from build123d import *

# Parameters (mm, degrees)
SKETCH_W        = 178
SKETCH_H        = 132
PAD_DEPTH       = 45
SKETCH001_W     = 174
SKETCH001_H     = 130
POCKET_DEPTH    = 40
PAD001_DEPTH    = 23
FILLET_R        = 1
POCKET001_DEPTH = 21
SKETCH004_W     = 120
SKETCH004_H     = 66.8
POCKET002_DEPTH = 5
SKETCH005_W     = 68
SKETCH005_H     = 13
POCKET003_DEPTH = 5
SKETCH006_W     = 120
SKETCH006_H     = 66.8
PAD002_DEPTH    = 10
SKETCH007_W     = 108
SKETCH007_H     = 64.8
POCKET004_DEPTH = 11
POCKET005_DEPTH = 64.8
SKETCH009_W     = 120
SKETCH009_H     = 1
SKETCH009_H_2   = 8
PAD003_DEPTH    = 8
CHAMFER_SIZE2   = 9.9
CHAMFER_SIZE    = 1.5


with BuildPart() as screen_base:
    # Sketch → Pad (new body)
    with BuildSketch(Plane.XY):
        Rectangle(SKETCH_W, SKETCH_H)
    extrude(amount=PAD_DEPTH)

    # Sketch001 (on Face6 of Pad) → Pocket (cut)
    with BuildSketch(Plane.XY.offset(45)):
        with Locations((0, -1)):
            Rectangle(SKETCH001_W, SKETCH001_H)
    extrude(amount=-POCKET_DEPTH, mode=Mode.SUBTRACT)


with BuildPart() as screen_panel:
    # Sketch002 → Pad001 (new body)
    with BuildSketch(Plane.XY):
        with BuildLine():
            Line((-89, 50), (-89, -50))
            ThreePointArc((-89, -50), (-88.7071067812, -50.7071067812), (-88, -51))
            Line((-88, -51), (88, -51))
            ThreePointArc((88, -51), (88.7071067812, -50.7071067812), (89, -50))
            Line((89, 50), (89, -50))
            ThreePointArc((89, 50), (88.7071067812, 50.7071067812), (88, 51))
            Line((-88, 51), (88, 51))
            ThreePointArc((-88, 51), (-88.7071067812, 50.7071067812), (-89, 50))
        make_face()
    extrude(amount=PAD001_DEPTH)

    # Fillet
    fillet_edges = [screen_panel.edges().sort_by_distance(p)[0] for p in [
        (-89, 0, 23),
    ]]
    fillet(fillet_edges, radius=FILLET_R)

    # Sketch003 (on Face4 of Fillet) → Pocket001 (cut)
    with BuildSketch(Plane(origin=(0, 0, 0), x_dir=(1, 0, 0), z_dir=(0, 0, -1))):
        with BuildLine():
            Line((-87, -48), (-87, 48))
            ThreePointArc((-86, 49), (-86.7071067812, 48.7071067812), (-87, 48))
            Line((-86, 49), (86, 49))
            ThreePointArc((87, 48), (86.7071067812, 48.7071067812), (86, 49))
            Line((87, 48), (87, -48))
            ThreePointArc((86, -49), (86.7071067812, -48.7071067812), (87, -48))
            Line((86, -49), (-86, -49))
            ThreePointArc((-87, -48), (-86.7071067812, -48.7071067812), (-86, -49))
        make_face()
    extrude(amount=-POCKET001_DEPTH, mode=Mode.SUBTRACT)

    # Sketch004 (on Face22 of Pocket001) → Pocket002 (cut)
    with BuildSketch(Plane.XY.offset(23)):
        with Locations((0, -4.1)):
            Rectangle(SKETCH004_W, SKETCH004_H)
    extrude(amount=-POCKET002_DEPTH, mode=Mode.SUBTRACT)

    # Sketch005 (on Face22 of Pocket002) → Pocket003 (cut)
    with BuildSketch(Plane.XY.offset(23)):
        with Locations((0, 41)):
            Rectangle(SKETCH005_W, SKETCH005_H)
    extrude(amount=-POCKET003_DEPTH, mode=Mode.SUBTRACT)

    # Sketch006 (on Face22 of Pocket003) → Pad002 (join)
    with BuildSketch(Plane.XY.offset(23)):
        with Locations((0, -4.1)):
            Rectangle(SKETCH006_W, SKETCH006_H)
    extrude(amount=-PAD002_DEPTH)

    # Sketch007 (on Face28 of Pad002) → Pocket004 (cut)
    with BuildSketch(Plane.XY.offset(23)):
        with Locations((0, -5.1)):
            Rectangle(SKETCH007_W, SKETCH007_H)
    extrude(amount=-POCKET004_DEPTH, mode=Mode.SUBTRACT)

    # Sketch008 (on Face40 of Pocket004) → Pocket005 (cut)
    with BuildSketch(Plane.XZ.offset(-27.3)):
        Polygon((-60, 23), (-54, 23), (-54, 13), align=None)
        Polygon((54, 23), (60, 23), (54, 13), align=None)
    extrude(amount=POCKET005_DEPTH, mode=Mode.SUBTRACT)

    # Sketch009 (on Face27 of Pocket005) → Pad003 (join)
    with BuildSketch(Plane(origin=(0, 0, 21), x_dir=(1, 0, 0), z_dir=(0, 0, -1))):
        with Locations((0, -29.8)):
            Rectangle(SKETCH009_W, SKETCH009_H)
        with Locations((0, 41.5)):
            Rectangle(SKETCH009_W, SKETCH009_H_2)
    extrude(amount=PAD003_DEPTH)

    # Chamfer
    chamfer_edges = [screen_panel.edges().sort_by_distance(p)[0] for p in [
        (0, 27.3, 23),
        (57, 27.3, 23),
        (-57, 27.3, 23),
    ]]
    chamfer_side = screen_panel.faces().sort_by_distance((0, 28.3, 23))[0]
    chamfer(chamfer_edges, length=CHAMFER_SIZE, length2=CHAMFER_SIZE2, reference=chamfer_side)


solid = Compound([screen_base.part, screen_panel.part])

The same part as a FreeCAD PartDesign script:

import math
import FreeCAD as App
import Part
import Sketcher

V = App.Vector


def edges_at(feature, points):
    """Names of the edges that pass closest to the given points."""
    edges = feature.Shape.Edges
    near = lambda p: min(range(len(edges)), key=lambda i: edges[i].distToShape(Part.Vertex(*p))[0])
    return sorted({f"Edge{near(p) + 1}" for p in points})

doc = App.newDocument("Part")
body = doc.addObject("PartDesign::Body", "Body")

# Sketch on XY plane
sketch1 = doc.addObject("Sketcher::SketchObject", "Sketch")
body.addObject(sketch1)
sketch1.AttachmentSupport = (doc.XY_Plane, [""])
sketch1.MapMode = "FlatFace"
sketch1.addGeometry([
    Part.LineSegment(V(-89, 66, 0), V(-89, -66, 0)),
    Part.LineSegment(V(-89, -66, 0), V(89, -66, 0)),
    Part.LineSegment(V(89, -66, 0), V(89, 66, 0)),
    Part.LineSegment(V(89, 66, 0), V(-89, 66, 0)),
], False)
sketch1.addConstraint([
    Sketcher.Constraint("Coincident", 0, 2, 1, 1),
    Sketcher.Constraint("Coincident", 1, 2, 2, 1),
    Sketcher.Constraint("Coincident", 2, 2, 3, 1),
    Sketcher.Constraint("Coincident", 3, 2, 0, 1),
    Sketcher.Constraint("Vertical", 0),
    Sketcher.Constraint("Horizontal", 1),
    Sketcher.Constraint("Vertical", 2),
    Sketcher.Constraint("Horizontal", 3),
    Sketcher.Constraint("Symmetric", 0, 2, 2, 2, -1, 1),
    Sketcher.Constraint("DistanceX", 1, 1, 1, 2, 178.0),
    Sketcher.Constraint("DistanceY", 0, 2, 0, 1, 132.0),
])
pad1 = doc.addObject("PartDesign::Pad", "Pad")
body.addObject(pad1)
pad1.Profile = sketch1
pad1.Length = 45

# Sketch on XY plane
sketch2 = doc.addObject("Sketcher::SketchObject", "Sketch001")
body.addObject(sketch2)
sketch2.AttachmentSupport = (doc.XY_Plane, [""])
sketch2.MapMode = "FlatFace"
sketch2.AttachmentOffset = App.Placement(V(0, 0, 45), App.Rotation())
sketch2.addGeometry([
    Part.LineSegment(V(-87, 64, 0), V(-87, -66, 0)),
    Part.LineSegment(V(-87, -66, 0), V(87, -66, 0)),
    Part.LineSegment(V(87, -66, 0), V(87, 64, 0)),
    Part.LineSegment(V(87, 64, 0), V(-87, 64, 0)),
], False)
sketch2.addConstraint([
    Sketcher.Constraint("Coincident", 0, 2, 1, 1),
    Sketcher.Constraint("Coincident", 1, 2, 2, 1),
    Sketcher.Constraint("Coincident", 2, 2, 3, 1),
    Sketcher.Constraint("Coincident", 3, 2, 0, 1),
    Sketcher.Constraint("Vertical", 0),
    Sketcher.Constraint("Horizontal", 1),
    Sketcher.Constraint("Vertical", 2),
    Sketcher.Constraint("Horizontal", 3),
    Sketcher.Constraint("DistanceX", 1, 1, 1, 2, 174.0),
    Sketcher.Constraint("DistanceY", 0, 2, 0, 1, 130.0),
    Sketcher.Constraint("DistanceX", 0, 2, -1, 1, 87.0),
    Sketcher.Constraint("DistanceY", 0, 2, -1, 1, 66.0),
])
pocket1 = doc.addObject("PartDesign::Pocket", "Pocket")
body.addObject(pocket1)
pocket1.Profile = sketch2
pocket1.Length = 40
body2 = doc.addObject("PartDesign::Body", "Body001")

# Sketch on XY plane
sketch3 = doc.addObject("Sketcher::SketchObject", "Sketch002")
body2.addObject(sketch3)
sketch3.AttachmentSupport = (doc.getObject("XY_Plane001"), [""])
sketch3.MapMode = "FlatFace"
sketch3.addGeometry([
    Part.LineSegment(V(-89, 50, 0), V(-89, -50, 0)),  # 0
    Part.ArcOfCircle(Part.Circle(V(-88, -50, 0), V(0, 0, 1), 1), math.radians(180), math.radians(270)),  # 1
    Part.LineSegment(V(-88, -51, 0), V(88, -51, 0)),  # 2
    Part.ArcOfCircle(Part.Circle(V(88, -50, 0), V(0, 0, 1), 1), math.radians(-90), math.radians(0)),  # 3
    Part.LineSegment(V(89, -50, 0), V(89, 50, 0)),  # 4
    Part.ArcOfCircle(Part.Circle(V(88, 50, 0), V(0, 0, 1), 1), math.radians(0), math.radians(90)),  # 5
    Part.LineSegment(V(88, 51, 0), V(-88, 51, 0)),  # 6
    Part.ArcOfCircle(Part.Circle(V(-88, 50, 0), V(0, 0, 1), 1), math.radians(90), math.radians(180)),  # 7
], False)
sketch3.addConstraint([
    Sketcher.Constraint("Tangent", 0, 2, 1, 1),
    Sketcher.Constraint("Tangent", 1, 2, 2, 1),
    Sketcher.Constraint("Tangent", 2, 2, 3, 1),
    Sketcher.Constraint("Tangent", 3, 2, 4, 1),
    Sketcher.Constraint("Tangent", 4, 2, 5, 1),
    Sketcher.Constraint("Tangent", 5, 2, 6, 1),
    Sketcher.Constraint("Tangent", 6, 2, 7, 1),
    Sketcher.Constraint("Tangent", 7, 2, 0, 1),
    Sketcher.Constraint("Vertical", 0),
    Sketcher.Constraint("Horizontal", 2),
    Sketcher.Constraint("Vertical", 4),
    Sketcher.Constraint("Horizontal", 6),
    Sketcher.Constraint("Equal", 1, 3),
    Sketcher.Constraint("Equal", 3, 5),
    Sketcher.Constraint("Equal", 5, 7),
    Sketcher.Constraint("Symmetric", 1, 3, 5, 3, -1, 1),
    Sketcher.Constraint("Radius", 1, 1.0),
    Sketcher.Constraint("DistanceX", 2, 1, 2, 2, 176.0),
    Sketcher.Constraint("DistanceY", 0, 2, 0, 1, 100.0),
])
pad2 = doc.addObject("PartDesign::Pad", "Pad001")
body2.addObject(pad2)
pad2.Profile = sketch3
pad2.Length = 23
doc.recompute()

fillet = doc.addObject("PartDesign::Fillet", "Fillet")
body2.addObject(fillet)
fillet.Base = (pad2, edges_at(pad2, [(-89, 0, 23)]))
fillet.Radius = 1

# Sketch on XY plane
sketch4 = doc.addObject("Sketcher::SketchObject", "Sketch003")
body2.addObject(sketch4)
sketch4.AttachmentSupport = (doc.getObject("XY_Plane001"), [""])
sketch4.MapMode = "FlatFace"
sketch4.addGeometry([
    Part.LineSegment(V(-87, -48, 0), V(-87, 48, 0)),  # 0
    Part.ArcOfCircle(Part.Circle(V(-86, 48, 0), V(0, 0, 1), 1), math.radians(90), math.radians(180)),  # 1
    Part.LineSegment(V(-86, 49, 0), V(86, 49, 0)),  # 2
    Part.ArcOfCircle(Part.Circle(V(86, 48, 0), V(0, 0, 1), 1), math.radians(0), math.radians(90)),  # 3
    Part.LineSegment(V(87, 48, 0), V(87, -48, 0)),  # 4
    Part.ArcOfCircle(Part.Circle(V(86, -48, 0), V(0, 0, 1), 1), math.radians(-90), math.radians(0)),  # 5
    Part.LineSegment(V(86, -49, 0), V(-86, -49, 0)),  # 6
    Part.ArcOfCircle(Part.Circle(V(-86, -48, 0), V(0, 0, 1), 1), math.radians(180), math.radians(270)),  # 7
], False)
sketch4.addConstraint([
    Sketcher.Constraint("Tangent", 0, 2, 1, 2),
    Sketcher.Constraint("Tangent", 1, 1, 2, 1),
    Sketcher.Constraint("Tangent", 2, 2, 3, 2),
    Sketcher.Constraint("Tangent", 3, 1, 4, 1),
    Sketcher.Constraint("Tangent", 4, 2, 5, 2),
    Sketcher.Constraint("Tangent", 5, 1, 6, 1),
    Sketcher.Constraint("Tangent", 6, 2, 7, 2),
    Sketcher.Constraint("Tangent", 7, 1, 0, 1),
    Sketcher.Constraint("Vertical", 0),
    Sketcher.Constraint("Horizontal", 2),
    Sketcher.Constraint("Vertical", 4),
    Sketcher.Constraint("Horizontal", 6),
    Sketcher.Constraint("Equal", 1, 3),
    Sketcher.Constraint("Equal", 3, 5),
    Sketcher.Constraint("Equal", 5, 7),
    Sketcher.Constraint("Symmetric", 1, 3, 5, 3, -1, 1),
    Sketcher.Constraint("Radius", 1, 1.0),
    Sketcher.Constraint("DistanceX", 2, 1, 2, 2, 172.0),
    Sketcher.Constraint("DistanceY", 0, 1, 0, 2, 96.0),
])
pocket2 = doc.addObject("PartDesign::Pocket", "Pocket001")
body2.addObject(pocket2)
pocket2.Profile = sketch4
pocket2.Length = 21
pocket2.Reversed = True

# Sketch on XY plane
sketch5 = doc.addObject("Sketcher::SketchObject", "Sketch004")
body2.addObject(sketch5)
sketch5.AttachmentSupport = (doc.getObject("XY_Plane001"), [""])
sketch5.MapMode = "FlatFace"
sketch5.AttachmentOffset = App.Placement(V(0, 0, 23), App.Rotation())
sketch5.addGeometry([
    Part.LineSegment(V(-60, 29, 0), V(-60, -38, 0)),
    Part.LineSegment(V(-60, -38, 0), V(60, -38, 0)),
    Part.LineSegment(V(60, -38, 0), V(60, 29, 0)),
    Part.LineSegment(V(60, 29, 0), V(-60, 29, 0)),
], False)
sketch5.addConstraint([
    Sketcher.Constraint("Coincident", 0, 2, 1, 1),
    Sketcher.Constraint("Coincident", 1, 2, 2, 1),
    Sketcher.Constraint("Coincident", 2, 2, 3, 1),
    Sketcher.Constraint("Coincident", 3, 2, 0, 1),
    Sketcher.Constraint("Vertical", 0),
    Sketcher.Constraint("Horizontal", 1),
    Sketcher.Constraint("Vertical", 2),
    Sketcher.Constraint("Horizontal", 3),
    Sketcher.Constraint("DistanceX", 1, 1, 1, 2, 120.0),
    Sketcher.Constraint("DistanceY", 0, 2, 0, 1, 66.8),
    Sketcher.Constraint("DistanceX", 0, 2, -1, 1, 60.0),
    Sketcher.Constraint("DistanceY", 0, 2, -1, 1, 37.5),
])
pocket3 = doc.addObject("PartDesign::Pocket", "Pocket002")
body2.addObject(pocket3)
pocket3.Profile = sketch5
pocket3.Length = 5

# Sketch on XY plane
sketch6 = doc.addObject("Sketcher::SketchObject", "Sketch005")
body2.addObject(sketch6)
sketch6.AttachmentSupport = (doc.getObject("XY_Plane001"), [""])
sketch6.MapMode = "FlatFace"
sketch6.AttachmentOffset = App.Placement(V(0, 0, 23), App.Rotation())
sketch6.addGeometry([
    Part.LineSegment(V(-34, 48, 0), V(-34, 34, 0)),
    Part.LineSegment(V(-34, 34, 0), V(34, 34, 0)),
    Part.LineSegment(V(34, 34, 0), V(34, 48, 0)),
    Part.LineSegment(V(34, 48, 0), V(-34, 48, 0)),
], False)
sketch6.addConstraint([
    Sketcher.Constraint("Coincident", 0, 2, 1, 1),
    Sketcher.Constraint("Coincident", 1, 2, 2, 1),
    Sketcher.Constraint("Coincident", 2, 2, 3, 1),
    Sketcher.Constraint("Coincident", 3, 2, 0, 1),
    Sketcher.Constraint("Vertical", 0),
    Sketcher.Constraint("Horizontal", 1),
    Sketcher.Constraint("Vertical", 2),
    Sketcher.Constraint("Horizontal", 3),
    Sketcher.Constraint("DistanceX", 1, 1, 1, 2, 68.0),
    Sketcher.Constraint("DistanceY", 0, 2, 0, 1, 13.0),
    Sketcher.Constraint("DistanceX", 0, 2, -1, 1, 34.0),
    Sketcher.Constraint("DistanceY", -1, 1, 0, 2, 34.5),
])
pocket4 = doc.addObject("PartDesign::Pocket", "Pocket003")
body2.addObject(pocket4)
pocket4.Profile = sketch6
pocket4.Length = 5

# Sketch on XY plane
sketch7 = doc.addObject("Sketcher::SketchObject", "Sketch006")
body2.addObject(sketch7)
sketch7.AttachmentSupport = (doc.getObject("XY_Plane001"), [""])
sketch7.MapMode = "FlatFace"
sketch7.AttachmentOffset = App.Placement(V(0, 0, 23), App.Rotation())
sketch7.addGeometry([
    Part.LineSegment(V(-60, 29, 0), V(-60, -38, 0)),
    Part.LineSegment(V(-60, -38, 0), V(60, -38, 0)),
    Part.LineSegment(V(60, -38, 0), V(60, 29, 0)),
    Part.LineSegment(V(60, 29, 0), V(-60, 29, 0)),
], False)
sketch7.addConstraint([
    Sketcher.Constraint("Coincident", 0, 2, 1, 1),
    Sketcher.Constraint("Coincident", 1, 2, 2, 1),
    Sketcher.Constraint("Coincident", 2, 2, 3, 1),
    Sketcher.Constraint("Coincident", 3, 2, 0, 1),
    Sketcher.Constraint("Vertical", 0),
    Sketcher.Constraint("Horizontal", 1),
    Sketcher.Constraint("Vertical", 2),
    Sketcher.Constraint("Horizontal", 3),
    Sketcher.Constraint("DistanceX", 1, 1, 1, 2, 120.0),
    Sketcher.Constraint("DistanceY", 0, 2, 0, 1, 66.8),
    Sketcher.Constraint("DistanceX", 0, 2, -1, 1, 60.0),
    Sketcher.Constraint("DistanceY", 0, 2, -1, 1, 37.5),
])
pad3 = doc.addObject("PartDesign::Pad", "Pad002")
body2.addObject(pad3)
pad3.Profile = sketch7
pad3.Length = 10
pad3.Reversed = True

# Sketch on XY plane
sketch8 = doc.addObject("Sketcher::SketchObject", "Sketch007")
body2.addObject(sketch8)
sketch8.AttachmentSupport = (doc.getObject("XY_Plane001"), [""])
sketch8.MapMode = "FlatFace"
sketch8.AttachmentOffset = App.Placement(V(0, 0, 23), App.Rotation())
sketch8.addGeometry([
    Part.LineSegment(V(-54, 27, 0), V(-54, -38, 0)),
    Part.LineSegment(V(-54, -38, 0), V(54, -38, 0)),
    Part.LineSegment(V(54, -38, 0), V(54, 27, 0)),
    Part.LineSegment(V(54, 27, 0), V(-54, 27, 0)),
], False)
sketch8.addConstraint([
    Sketcher.Constraint("Coincident", 0, 2, 1, 1),
    Sketcher.Constraint("Coincident", 1, 2, 2, 1),
    Sketcher.Constraint("Coincident", 2, 2, 3, 1),
    Sketcher.Constraint("Coincident", 3, 2, 0, 1),
    Sketcher.Constraint("Vertical", 0),
    Sketcher.Constraint("Horizontal", 1),
    Sketcher.Constraint("Vertical", 2),
    Sketcher.Constraint("Horizontal", 3),
    Sketcher.Constraint("DistanceX", 1, 1, 1, 2, 108.0),
    Sketcher.Constraint("DistanceY", 0, 2, 0, 1, 64.8),
    Sketcher.Constraint("DistanceX", 0, 2, -1, 1, 54.0),
    Sketcher.Constraint("DistanceY", 0, 2, -1, 1, 37.5),
])
pocket5 = doc.addObject("PartDesign::Pocket", "Pocket004")
body2.addObject(pocket5)
pocket5.Profile = sketch8
pocket5.Length = 11

# Sketch on XZ plane
sketch9 = doc.addObject("Sketcher::SketchObject", "Sketch008")
body2.addObject(sketch9)
sketch9.AttachmentSupport = (doc.getObject("XZ_Plane001"), [""])
sketch9.MapMode = "FlatFace"
sketch9.AttachmentOffset = App.Placement(V(0, 0, -27.3), App.Rotation())
sketch9.addGeometry([
    Part.LineSegment(V(-54, 23, 0), V(-60, 23, 0)),  # 0
    Part.LineSegment(V(-60, 23, 0), V(-54, 13, 0)),  # 1
    Part.LineSegment(V(-54, 13, 0), V(-54, 23, 0)),  # 2
    Part.LineSegment(V(60, 23, 0), V(54, 23, 0)),  # 3
    Part.LineSegment(V(54, 23, 0), V(54, 13, 0)),  # 4
    Part.LineSegment(V(54, 13, 0), V(60, 23, 0)),  # 5
], False)
sketch9.addConstraint([
    Sketcher.Constraint("Coincident", 0, 2, 1, 1),
    Sketcher.Constraint("Coincident", 1, 2, 2, 1),
    Sketcher.Constraint("Coincident", 2, 2, 0, 1),
    Sketcher.Constraint("Coincident", 3, 2, 4, 1),
    Sketcher.Constraint("Coincident", 4, 2, 5, 1),
    Sketcher.Constraint("Coincident", 5, 2, 3, 1),
    Sketcher.Constraint("Horizontal", 0),
    Sketcher.Constraint("Vertical", 2),
    Sketcher.Constraint("Horizontal", 3),
    Sketcher.Constraint("Vertical", 4),
    Sketcher.Constraint("Symmetric", 2, 2, 3, 2, -2),
    Sketcher.Constraint("Horizontal", 1, 2, 4, 2),
    Sketcher.Constraint("Equal", 0, 3),
    Sketcher.Constraint("DistanceX", 0, 2, 0, 1, 6.0),
    Sketcher.Constraint("DistanceY", 2, 1, 2, 2, 10.0),
    Sketcher.Constraint("DistanceX", 0, 2, -1, 1, 60.0),
    Sketcher.Constraint("DistanceY", -1, 1, 0, 2, 23.0),
])
pocket6 = doc.addObject("PartDesign::Pocket", "Pocket005")
body2.addObject(pocket6)
pocket6.Profile = sketch9
pocket6.Length = 64.8
pocket6.Reversed = True

# Sketch on XY plane
sketch10 = doc.addObject("Sketcher::SketchObject", "Sketch009")
body2.addObject(sketch10)
sketch10.AttachmentSupport = (doc.getObject("XY_Plane001"), [""])
sketch10.MapMode = "FlatFace"
sketch10.AttachmentOffset = App.Placement(V(0, 0, 21), App.Rotation())
sketch10.addGeometry([
    Part.LineSegment(V(-60, 29.3, 0), V(-60, 30.3, 0)),  # 0
    Part.LineSegment(V(-60, 30.3, 0), V(60, 30.3, 0)),  # 1
    Part.LineSegment(V(60, 30.3, 0), V(60, 29.3, 0)),  # 2
    Part.LineSegment(V(60, 29.3, 0), V(-60, 29.3, 0)),  # 3
    Part.LineSegment(V(-60, -45.5, 0), V(-60, -37.5, 0)),  # 4
    Part.LineSegment(V(-60, -37.5, 0), V(60, -37.5, 0)),  # 5
    Part.LineSegment(V(60, -37.5, 0), V(60, -45.5, 0)),  # 6
    Part.LineSegment(V(60, -45.5, 0), V(-60, -45.5, 0)),  # 7
], False)
sketch10.addConstraint([
    Sketcher.Constraint("Coincident", 0, 2, 1, 1),
    Sketcher.Constraint("Coincident", 1, 2, 2, 1),
    Sketcher.Constraint("Coincident", 2, 2, 3, 1),
    Sketcher.Constraint("Coincident", 3, 2, 0, 1),
    Sketcher.Constraint("Coincident", 4, 2, 5, 1),
    Sketcher.Constraint("Coincident", 5, 2, 6, 1),
    Sketcher.Constraint("Coincident", 6, 2, 7, 1),
    Sketcher.Constraint("Coincident", 7, 2, 4, 1),
    Sketcher.Constraint("Vertical", 0),
    Sketcher.Constraint("Horizontal", 1),
    Sketcher.Constraint("Vertical", 2),
    Sketcher.Constraint("Horizontal", 3),
    Sketcher.Constraint("Vertical", 4),
    Sketcher.Constraint("Horizontal", 5),
    Sketcher.Constraint("Vertical", 6),
    Sketcher.Constraint("Horizontal", 7),
    Sketcher.Constraint("Vertical", 3, 2, 4, 2),
    Sketcher.Constraint("Vertical", 2, 2, 5, 2),
    Sketcher.Constraint("DistanceX", 1, 1, 1, 2, 120.0),
    Sketcher.Constraint("DistanceY", 0, 1, 0, 2, 1.0),
    Sketcher.Constraint("DistanceY", 4, 1, 4, 2, 8.0),
    Sketcher.Constraint("DistanceX", 0, 2, -1, 1, 60.0),
    Sketcher.Constraint("DistanceY", -1, 1, 0, 2, 30.3),
    Sketcher.Constraint("DistanceY", 4, 2, -1, 1, 37.5),
])
pad4 = doc.addObject("PartDesign::Pad", "Pad003")
body2.addObject(pad4)
pad4.Profile = sketch10
pad4.Length = 8
pad4.Reversed = True
doc.recompute()

chamfer = doc.addObject("PartDesign::Chamfer", "Chamfer")
body2.addObject(chamfer)
chamfer.Base = (pad4, edges_at(pad4, [(0, 27.3, 23), (0, 27.3, 23), (0, 27.3, 23)]))
chamfer.ChamferType = "Two distances"
chamfer.Size = 1.5
chamfer.Size2 = 9.9

doc.recompute()
